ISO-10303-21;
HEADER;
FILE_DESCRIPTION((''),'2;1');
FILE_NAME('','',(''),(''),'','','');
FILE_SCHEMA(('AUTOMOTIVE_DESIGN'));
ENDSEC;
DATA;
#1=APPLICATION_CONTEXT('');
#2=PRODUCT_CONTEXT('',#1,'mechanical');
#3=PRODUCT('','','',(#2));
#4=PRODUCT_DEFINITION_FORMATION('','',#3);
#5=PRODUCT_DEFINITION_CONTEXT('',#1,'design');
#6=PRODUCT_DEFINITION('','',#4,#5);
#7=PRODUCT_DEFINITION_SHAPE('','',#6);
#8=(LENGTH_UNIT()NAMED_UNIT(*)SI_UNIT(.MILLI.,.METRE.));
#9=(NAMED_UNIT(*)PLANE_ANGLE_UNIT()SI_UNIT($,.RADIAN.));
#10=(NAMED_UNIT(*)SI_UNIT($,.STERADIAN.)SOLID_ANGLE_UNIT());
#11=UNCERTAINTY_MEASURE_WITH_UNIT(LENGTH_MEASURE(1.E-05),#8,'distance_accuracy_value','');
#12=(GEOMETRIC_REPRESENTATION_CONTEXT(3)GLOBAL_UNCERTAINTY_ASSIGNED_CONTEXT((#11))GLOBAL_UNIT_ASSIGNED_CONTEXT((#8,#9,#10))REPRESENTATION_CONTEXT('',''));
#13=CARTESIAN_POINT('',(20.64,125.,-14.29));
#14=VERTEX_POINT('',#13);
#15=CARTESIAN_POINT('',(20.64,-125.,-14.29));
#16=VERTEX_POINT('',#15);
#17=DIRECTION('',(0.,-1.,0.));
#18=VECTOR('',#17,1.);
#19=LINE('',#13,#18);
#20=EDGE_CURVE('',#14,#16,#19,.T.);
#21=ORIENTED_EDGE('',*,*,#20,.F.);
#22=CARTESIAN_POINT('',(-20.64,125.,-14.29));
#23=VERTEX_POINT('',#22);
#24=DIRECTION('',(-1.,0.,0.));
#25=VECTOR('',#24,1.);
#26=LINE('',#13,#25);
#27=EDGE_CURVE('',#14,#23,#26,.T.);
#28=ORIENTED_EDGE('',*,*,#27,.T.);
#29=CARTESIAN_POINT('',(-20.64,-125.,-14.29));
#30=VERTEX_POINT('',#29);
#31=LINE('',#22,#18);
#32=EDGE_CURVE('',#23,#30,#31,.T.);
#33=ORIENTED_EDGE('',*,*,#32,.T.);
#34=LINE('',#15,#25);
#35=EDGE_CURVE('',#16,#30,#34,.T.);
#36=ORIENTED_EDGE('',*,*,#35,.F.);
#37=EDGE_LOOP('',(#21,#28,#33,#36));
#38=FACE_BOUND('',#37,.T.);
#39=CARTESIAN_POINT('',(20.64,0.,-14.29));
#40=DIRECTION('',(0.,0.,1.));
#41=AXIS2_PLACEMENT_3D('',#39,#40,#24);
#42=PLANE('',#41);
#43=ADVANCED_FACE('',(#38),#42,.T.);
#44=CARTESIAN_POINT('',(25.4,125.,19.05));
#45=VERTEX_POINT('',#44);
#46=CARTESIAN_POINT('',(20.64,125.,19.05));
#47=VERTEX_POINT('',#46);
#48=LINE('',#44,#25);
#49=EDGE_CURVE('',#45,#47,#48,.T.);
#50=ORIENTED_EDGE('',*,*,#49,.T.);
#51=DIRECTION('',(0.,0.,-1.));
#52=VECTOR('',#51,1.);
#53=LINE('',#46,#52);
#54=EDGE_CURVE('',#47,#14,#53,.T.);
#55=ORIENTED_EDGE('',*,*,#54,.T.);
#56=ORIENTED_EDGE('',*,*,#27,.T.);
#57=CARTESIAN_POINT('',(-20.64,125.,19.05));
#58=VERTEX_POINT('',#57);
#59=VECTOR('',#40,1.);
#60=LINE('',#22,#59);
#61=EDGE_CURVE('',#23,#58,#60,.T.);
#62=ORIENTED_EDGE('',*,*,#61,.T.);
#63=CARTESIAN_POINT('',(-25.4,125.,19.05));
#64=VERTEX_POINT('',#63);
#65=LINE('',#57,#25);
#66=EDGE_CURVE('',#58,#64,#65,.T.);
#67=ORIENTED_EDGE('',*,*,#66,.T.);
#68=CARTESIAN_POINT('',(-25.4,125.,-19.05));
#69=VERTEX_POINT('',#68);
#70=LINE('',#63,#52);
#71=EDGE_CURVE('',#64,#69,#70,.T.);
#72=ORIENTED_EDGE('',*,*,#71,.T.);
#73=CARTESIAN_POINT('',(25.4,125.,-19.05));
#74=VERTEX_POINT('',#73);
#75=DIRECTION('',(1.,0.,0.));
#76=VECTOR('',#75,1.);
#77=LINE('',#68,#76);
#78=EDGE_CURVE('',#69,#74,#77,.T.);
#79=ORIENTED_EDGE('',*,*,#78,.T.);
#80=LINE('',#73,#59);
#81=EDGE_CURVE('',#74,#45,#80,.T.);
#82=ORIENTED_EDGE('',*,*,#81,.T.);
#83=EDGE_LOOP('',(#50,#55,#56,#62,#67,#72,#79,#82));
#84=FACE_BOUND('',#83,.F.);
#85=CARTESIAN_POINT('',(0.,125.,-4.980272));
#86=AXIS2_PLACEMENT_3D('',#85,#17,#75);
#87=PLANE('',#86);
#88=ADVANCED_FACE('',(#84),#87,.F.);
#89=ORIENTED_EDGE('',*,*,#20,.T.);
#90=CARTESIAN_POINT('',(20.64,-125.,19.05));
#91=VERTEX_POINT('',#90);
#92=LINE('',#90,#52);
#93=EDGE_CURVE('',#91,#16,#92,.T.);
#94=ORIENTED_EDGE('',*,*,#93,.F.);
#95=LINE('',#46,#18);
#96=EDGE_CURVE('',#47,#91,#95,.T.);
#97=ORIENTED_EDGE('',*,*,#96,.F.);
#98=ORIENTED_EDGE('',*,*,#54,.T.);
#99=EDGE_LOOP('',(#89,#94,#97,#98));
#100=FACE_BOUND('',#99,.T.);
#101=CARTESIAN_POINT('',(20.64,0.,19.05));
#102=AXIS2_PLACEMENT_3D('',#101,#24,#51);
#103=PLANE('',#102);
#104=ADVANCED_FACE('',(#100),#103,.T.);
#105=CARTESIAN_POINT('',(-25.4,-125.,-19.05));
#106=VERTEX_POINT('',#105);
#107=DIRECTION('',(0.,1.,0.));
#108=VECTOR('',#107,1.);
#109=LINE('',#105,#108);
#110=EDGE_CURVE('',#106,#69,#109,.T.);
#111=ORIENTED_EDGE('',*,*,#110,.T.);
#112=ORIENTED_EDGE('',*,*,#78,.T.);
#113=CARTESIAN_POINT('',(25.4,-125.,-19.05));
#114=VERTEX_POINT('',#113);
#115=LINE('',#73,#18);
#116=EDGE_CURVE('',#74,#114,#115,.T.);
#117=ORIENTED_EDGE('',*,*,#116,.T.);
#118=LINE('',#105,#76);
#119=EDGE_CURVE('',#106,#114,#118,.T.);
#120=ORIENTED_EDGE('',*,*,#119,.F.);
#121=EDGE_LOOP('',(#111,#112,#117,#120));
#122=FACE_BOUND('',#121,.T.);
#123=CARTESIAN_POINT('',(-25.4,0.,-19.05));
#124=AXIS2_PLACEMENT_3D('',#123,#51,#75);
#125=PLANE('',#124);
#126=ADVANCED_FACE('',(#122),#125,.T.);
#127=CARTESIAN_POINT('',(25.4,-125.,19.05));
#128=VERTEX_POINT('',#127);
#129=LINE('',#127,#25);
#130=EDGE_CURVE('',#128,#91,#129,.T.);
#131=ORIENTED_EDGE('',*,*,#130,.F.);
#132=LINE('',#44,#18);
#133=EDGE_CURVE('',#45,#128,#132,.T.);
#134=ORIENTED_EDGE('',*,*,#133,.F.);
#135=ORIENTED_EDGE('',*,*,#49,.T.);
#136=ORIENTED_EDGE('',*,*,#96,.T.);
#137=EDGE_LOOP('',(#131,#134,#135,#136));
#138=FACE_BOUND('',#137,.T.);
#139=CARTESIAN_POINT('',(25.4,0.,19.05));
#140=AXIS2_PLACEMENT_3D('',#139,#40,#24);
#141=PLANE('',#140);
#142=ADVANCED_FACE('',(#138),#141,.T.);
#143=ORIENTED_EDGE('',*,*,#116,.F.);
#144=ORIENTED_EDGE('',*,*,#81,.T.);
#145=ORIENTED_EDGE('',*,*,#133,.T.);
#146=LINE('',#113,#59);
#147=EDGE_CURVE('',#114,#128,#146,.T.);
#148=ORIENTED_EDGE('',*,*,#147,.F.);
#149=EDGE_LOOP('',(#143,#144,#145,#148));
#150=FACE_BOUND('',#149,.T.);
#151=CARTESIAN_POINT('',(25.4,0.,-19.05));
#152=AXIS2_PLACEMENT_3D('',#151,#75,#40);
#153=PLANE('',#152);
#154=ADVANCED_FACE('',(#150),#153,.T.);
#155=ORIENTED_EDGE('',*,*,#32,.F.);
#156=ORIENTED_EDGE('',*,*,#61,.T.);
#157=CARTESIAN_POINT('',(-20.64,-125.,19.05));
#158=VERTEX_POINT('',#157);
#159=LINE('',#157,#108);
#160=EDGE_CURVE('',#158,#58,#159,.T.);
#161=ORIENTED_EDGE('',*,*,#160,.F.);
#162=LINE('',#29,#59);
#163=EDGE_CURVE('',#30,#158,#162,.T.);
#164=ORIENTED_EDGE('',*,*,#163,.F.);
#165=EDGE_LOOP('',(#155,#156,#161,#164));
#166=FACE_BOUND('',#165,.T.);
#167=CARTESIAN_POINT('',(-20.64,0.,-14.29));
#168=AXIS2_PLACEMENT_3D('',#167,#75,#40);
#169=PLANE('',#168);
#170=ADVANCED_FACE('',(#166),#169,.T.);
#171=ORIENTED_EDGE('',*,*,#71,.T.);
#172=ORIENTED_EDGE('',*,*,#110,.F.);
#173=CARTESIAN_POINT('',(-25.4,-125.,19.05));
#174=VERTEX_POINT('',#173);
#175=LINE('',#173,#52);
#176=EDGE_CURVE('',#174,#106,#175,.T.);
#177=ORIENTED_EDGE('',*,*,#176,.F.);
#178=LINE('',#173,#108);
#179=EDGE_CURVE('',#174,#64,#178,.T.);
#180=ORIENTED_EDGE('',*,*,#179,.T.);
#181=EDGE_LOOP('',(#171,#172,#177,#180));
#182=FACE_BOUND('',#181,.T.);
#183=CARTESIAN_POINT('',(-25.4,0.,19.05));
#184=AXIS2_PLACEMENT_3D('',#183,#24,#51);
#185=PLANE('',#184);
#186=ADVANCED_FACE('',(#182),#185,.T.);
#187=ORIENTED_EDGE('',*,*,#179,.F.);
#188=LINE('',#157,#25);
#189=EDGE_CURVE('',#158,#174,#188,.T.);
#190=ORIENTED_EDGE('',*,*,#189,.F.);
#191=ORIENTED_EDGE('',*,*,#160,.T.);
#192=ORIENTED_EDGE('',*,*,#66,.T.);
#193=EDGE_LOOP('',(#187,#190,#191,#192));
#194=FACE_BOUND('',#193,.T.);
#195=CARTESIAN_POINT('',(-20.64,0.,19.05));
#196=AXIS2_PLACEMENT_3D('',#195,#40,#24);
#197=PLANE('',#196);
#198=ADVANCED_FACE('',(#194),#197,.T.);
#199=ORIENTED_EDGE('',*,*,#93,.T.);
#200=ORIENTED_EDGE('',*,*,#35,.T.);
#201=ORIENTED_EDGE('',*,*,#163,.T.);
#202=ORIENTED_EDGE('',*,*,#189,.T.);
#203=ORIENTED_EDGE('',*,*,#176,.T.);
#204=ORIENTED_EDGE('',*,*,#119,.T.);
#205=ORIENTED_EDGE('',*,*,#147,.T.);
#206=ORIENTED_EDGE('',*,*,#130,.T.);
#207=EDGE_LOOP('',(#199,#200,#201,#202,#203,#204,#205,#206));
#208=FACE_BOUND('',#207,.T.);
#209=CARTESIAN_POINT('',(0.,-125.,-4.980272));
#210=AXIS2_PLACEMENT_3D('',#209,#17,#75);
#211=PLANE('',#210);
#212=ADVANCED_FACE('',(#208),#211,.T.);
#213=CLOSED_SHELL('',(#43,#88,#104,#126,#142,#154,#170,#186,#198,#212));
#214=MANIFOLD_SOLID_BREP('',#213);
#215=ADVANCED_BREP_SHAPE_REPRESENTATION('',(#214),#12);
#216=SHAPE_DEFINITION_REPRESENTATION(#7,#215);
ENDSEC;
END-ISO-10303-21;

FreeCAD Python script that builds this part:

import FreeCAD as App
import Part
import Sketcher

V = App.Vector
Q = App.Units.Quantity


def add_polygon(sketch, points):
    """Adds a closed chain of lines whose ends are joined by coincident constraints."""
    first, n = sketch.GeometryCount, len(points)
    for a, b in zip(points, points[1:] + points[:1]):
        sketch.addGeometry(Part.LineSegment(App.Vector(*a, 0), App.Vector(*b, 0)), False)
    for i in range(n):
        sketch.addConstraint(Sketcher.Constraint("Coincident", first + i, 2, first + (i + 1) % n, 1))

doc = App.newDocument("Part")
params = doc.addObject("Spreadsheet::Sheet", "Params")
for row, (alias, value) in enumerate([
    ("sketch1_width", "2 in"),
    ("sketch1_height", "1.5 in"),
    ("pad1_length", "125 mm"),
    ("pad1_length2", "125 mm"),
], start=1):
    params.set(f"A{row}", alias)
    params.set(f"B{row}", "=" + value)
    params.setAlias(f"B{row}", alias)

body = doc.addObject("PartDesign::Body", "Body")

sketch1 = body.newObject("Sketcher::SketchObject", "Sketch")
sketch1.AttachmentSupport = (doc.getObject("XZ_Plane"), [""])
sketch1.MapMode = "FlatFace"
add_polygon(sketch1, [(-25.4, -19.05), (25.4, -19.05), (25.4, 19.05), (20.64, 19.05), (20.64, -14.29), (-20.64, -14.29), (-20.64, 19.05), (-25.4, 19.05)])
sketch1.addConstraint([
    Sketcher.Constraint("Horizontal", 0),
    Sketcher.Constraint("Vertical", 1),
    Sketcher.Constraint("Horizontal", 2),
    Sketcher.Constraint("Vertical", 3),
    Sketcher.Constraint("Horizontal", 4),
    Sketcher.Constraint("Vertical", 5),
    Sketcher.Constraint("Horizontal", 6),
    Sketcher.Constraint("Vertical", 7),
    Sketcher.Constraint("Symmetric", 0, 2, 6, 2, -1, 1),
    Sketcher.Constraint("Symmetric", 2, 2, 5, 2, -2),
    Sketcher.Constraint("DistanceX", 0, 1, 0, 2, Q("2 in")),
    Sketcher.Constraint("DistanceY", 1, 1, 1, 2, Q("1.5 in")),
    Sketcher.Constraint("DistanceX", 2, 2, 2, 1, Q("4.76 mm")),
    Sketcher.Constraint("DistanceY", 3, 2, 3, 1, Q("33.34 mm")),
])
sketch1.setExpression("Constraints[18]", "Params.sketch1_width")
sketch1.setExpression("Constraints[19]", "Params.sketch1_height")
pad1 = body.newObject("PartDesign::Pad", "Pad")
pad1.Profile = sketch1
pad1.Type = "TwoLengths"
pad1.setExpression("Length", "Params.pad1_length")
pad1.setExpression("Length2", "Params.pad1_length2")

doc.recompute()
